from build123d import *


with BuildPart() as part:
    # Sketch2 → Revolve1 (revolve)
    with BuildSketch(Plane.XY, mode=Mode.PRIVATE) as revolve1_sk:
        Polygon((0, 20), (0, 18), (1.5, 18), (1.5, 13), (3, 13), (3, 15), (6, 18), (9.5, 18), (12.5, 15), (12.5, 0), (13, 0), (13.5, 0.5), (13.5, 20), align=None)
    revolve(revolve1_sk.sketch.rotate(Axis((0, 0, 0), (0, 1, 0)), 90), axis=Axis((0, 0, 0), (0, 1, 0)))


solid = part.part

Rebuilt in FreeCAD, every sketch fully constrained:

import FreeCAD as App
import Part
import Sketcher

doc = App.newDocument("Part")
body = doc.addObject("PartDesign::Body", "Body")

# Sketch on XY plane
sketch1 = body.newObject("Sketcher::SketchObject", "Sketch")
sketch1.AttachmentSupport = (doc.getObject("XY_Plane"), [""])
sketch1.MapMode = "FlatFace"
sketch1.addGeometry([
    Part.LineSegment(App.Vector(0, 20, 0), App.Vector(0, 18, 0)),  # 0
    Part.LineSegment(App.Vector(0, 18, 0), App.Vector(1.5, 18, 0)),  # 1
    Part.LineSegment(App.Vector(1.5, 18, 0), App.Vector(1.5, 13, 0)),  # 2
    Part.LineSegment(App.Vector(1.5, 13, 0), App.Vector(3, 13, 0)),  # 3
    Part.LineSegment(App.Vector(3, 13, 0), App.Vector(3, 15, 0)),  # 4
    Part.LineSegment(App.Vector(3, 15, 0), App.Vector(6, 18, 0)),  # 5
    Part.LineSegment(App.Vector(6, 18, 0), App.Vector(9.5, 18, 0)),  # 6
    Part.LineSegment(App.Vector(9.5, 18, 0), App.Vector(12.5, 15, 0)),  # 7
    Part.LineSegment(App.Vector(12.5, 15, 0), App.Vector(12.5, 0, 0)),  # 8
    Part.LineSegment(App.Vector(12.5, 0, 0), App.Vector(13, 0, 0)),  # 9
    Part.LineSegment(App.Vector(13, 0, 0), App.Vector(13.5, 0.5, 0)),  # 10
    Part.LineSegment(App.Vector(13.5, 0.5, 0), App.Vector(13.5, 20, 0)),  # 11
    Part.LineSegment(App.Vector(13.5, 20, 0), App.Vector(0, 20, 0)),  # 12
], False)
sketch1.addConstraint([
    Sketcher.Constraint("Coincident", 0, 2, 1, 1),
    Sketcher.Constraint("Coincident", 1, 2, 2, 1),
    Sketcher.Constraint("Coincident", 2, 2, 3, 1),
    Sketcher.Constraint("Coincident", 3, 2, 4, 1),
    Sketcher.Constraint("Coincident", 4, 2, 5, 1),
    Sketcher.Constraint("Coincident", 5, 2, 6, 1),
    Sketcher.Constraint("Coincident", 6, 2, 7, 1),
    Sketcher.Constraint("Coincident", 7, 2, 8, 1),
    Sketcher.Constraint("Coincident", 8, 2, 9, 1),
    Sketcher.Constraint("Coincident", 9, 2, 10, 1),
    Sketcher.Constraint("Coincident", 10, 2, 11, 1),
    Sketcher.Constraint("Coincident", 11, 2, 12, 1),
    Sketcher.Constraint("Coincident", 12, 2, 0, 1),
    Sketcher.Constraint("Vertical", 0),
    Sketcher.Constraint("Horizontal", 1),
    Sketcher.Constraint("Vertical", 2),
    Sketcher.Constraint("Horizontal", 3),
    Sketcher.Constraint("Vertical", 4),
    Sketcher.Constraint("Horizontal", 6),
    Sketcher.Constraint("Vertical", 8),
    Sketcher.Constraint("Horizontal", 9),
    Sketcher.Constraint("Vertical", 11),
    Sketcher.Constraint("Horizontal", 12),
    Sketcher.Constraint("PointOnObject", 0, 2, -2),
    Sketcher.Constraint("PointOnObject", 8, 2, -1),
    Sketcher.Constraint("Perpendicular", 5, 7),
    Sketcher.Constraint("Perpendicular", 7, 10),
    Sketcher.Constraint("Horizontal", 1, 2, 5, 2),
    Sketcher.Constraint("Horizontal", 4, 2, 7, 2),
    Sketcher.Constraint("Equal", 1, 3),
    Sketcher.Constraint("Equal", 0, 4),
    Sketcher.Constraint("Equal", 5, 7),
    Sketcher.Constraint("DistanceY", 0, 2, 0, 1, 2.0),
    Sketcher.Constraint("DistanceY", 2, 2, 2, 1, 5.0),
    Sketcher.Constraint("DistanceY", 8, 2, 8, 1, 15.0),
    Sketcher.Constraint("DistanceX", 1, 1, 1, 2, 1.5),
    Sketcher.Constraint("DistanceX", 6, 1, 6, 2, 3.5),
    Sketcher.Constraint("DistanceX", 9, 1, 9, 2, 0.5),
    Sketcher.Constraint("DistanceX", 12, 2, 12, 1, 13.5),
])
revolution = body.newObject("PartDesign::Revolution", "Revolution")
revolution.Profile = sketch1
revolution.ReferenceAxis = (sketch1, ["V_Axis"])
revolution.Angle = 360

doc.recompute()
